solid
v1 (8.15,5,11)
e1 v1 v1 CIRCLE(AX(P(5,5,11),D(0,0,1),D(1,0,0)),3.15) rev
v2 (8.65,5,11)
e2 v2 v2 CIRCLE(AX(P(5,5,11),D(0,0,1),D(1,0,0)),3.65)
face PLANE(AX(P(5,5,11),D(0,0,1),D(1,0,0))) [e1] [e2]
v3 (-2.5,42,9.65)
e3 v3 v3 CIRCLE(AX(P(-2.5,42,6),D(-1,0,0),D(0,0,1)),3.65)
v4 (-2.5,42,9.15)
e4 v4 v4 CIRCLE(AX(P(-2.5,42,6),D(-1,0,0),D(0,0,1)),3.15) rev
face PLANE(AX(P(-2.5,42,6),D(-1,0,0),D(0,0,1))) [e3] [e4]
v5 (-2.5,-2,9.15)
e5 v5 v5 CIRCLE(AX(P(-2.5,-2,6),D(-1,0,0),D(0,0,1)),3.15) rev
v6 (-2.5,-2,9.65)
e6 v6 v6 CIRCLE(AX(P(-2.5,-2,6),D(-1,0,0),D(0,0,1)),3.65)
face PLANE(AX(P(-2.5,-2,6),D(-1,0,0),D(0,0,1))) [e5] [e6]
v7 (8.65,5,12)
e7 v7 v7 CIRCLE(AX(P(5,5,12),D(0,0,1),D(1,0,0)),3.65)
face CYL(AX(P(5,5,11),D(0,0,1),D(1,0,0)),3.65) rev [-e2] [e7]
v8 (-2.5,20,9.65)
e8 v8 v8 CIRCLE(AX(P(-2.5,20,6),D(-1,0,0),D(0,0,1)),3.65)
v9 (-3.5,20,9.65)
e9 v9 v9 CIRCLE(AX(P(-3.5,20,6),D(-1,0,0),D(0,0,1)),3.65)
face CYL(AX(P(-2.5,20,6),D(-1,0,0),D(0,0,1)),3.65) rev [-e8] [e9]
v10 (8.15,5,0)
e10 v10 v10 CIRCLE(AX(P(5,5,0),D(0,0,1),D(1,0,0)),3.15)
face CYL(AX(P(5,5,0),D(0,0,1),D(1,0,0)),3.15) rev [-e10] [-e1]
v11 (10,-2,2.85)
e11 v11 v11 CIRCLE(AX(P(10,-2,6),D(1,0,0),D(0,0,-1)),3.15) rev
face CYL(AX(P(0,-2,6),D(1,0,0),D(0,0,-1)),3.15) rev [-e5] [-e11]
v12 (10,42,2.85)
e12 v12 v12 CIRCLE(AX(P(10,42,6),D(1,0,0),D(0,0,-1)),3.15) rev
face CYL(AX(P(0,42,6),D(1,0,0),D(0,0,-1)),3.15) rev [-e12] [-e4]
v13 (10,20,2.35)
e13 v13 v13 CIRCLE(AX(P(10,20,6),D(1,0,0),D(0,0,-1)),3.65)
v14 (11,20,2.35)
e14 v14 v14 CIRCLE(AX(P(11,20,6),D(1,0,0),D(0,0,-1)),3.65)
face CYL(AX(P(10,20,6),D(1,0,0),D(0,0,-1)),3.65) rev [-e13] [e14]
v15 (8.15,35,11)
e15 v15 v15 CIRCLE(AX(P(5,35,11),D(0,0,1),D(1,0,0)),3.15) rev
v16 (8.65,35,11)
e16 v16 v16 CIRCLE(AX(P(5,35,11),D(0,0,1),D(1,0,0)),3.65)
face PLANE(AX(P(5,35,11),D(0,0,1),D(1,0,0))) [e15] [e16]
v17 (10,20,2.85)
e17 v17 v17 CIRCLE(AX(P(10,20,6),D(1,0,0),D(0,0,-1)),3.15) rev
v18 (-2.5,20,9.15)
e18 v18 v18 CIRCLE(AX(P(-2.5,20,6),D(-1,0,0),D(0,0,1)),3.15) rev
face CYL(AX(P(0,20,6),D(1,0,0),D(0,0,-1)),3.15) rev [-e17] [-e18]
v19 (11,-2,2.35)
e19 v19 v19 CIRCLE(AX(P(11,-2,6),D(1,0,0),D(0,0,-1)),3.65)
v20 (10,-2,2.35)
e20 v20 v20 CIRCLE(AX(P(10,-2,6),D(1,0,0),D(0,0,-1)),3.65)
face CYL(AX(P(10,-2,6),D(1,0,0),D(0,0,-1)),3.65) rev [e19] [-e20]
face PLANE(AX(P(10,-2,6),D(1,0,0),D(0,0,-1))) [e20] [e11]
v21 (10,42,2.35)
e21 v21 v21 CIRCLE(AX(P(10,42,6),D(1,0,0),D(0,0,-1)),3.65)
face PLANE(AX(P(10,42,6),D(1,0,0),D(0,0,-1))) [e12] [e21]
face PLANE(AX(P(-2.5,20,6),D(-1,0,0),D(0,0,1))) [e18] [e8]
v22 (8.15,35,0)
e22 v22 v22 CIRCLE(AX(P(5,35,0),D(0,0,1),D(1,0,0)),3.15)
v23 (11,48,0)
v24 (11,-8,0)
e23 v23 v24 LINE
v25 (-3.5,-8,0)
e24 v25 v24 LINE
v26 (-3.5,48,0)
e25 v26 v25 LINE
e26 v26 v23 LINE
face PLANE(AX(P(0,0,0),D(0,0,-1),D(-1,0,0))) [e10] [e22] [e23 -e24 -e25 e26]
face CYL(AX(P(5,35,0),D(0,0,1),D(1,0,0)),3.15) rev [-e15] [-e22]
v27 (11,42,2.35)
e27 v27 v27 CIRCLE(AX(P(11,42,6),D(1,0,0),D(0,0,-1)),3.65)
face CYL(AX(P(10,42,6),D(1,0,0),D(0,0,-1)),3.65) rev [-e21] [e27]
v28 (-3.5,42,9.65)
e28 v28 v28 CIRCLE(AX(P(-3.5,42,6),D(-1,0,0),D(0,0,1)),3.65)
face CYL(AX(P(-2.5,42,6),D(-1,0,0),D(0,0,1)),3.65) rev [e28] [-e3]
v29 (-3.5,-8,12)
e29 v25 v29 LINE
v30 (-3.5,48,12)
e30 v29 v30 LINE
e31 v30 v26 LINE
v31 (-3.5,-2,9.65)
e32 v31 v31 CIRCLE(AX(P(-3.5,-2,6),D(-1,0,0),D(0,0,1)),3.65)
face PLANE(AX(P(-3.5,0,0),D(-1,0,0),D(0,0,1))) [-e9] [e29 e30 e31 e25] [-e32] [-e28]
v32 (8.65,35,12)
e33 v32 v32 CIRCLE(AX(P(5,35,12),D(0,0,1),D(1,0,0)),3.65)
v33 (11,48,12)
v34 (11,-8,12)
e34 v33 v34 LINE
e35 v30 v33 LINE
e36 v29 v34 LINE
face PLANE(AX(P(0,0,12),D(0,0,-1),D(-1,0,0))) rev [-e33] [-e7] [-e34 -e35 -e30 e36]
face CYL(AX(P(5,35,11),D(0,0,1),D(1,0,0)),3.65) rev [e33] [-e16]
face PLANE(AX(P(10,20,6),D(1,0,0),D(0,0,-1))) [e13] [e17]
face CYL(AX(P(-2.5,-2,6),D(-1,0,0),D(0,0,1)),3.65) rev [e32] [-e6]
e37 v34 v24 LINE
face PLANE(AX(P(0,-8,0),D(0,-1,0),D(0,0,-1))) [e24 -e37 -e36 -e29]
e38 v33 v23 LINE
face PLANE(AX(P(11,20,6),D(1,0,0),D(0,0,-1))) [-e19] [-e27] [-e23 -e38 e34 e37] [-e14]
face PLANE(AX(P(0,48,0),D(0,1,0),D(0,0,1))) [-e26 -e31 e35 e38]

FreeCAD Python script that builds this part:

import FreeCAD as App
import Part
import Sketcher

V = App.Vector


def add_polygon(sketch, points):
    """Adds a closed chain of lines whose ends are joined by coincident constraints."""
    first, n = sketch.GeometryCount, len(points)
    for a, b in zip(points, points[1:] + points[:1]):
        sketch.addGeometry(Part.LineSegment(App.Vector(*a, 0), App.Vector(*b, 0)), False)
    for i in range(n):
        sketch.addConstraint(Sketcher.Constraint("Coincident", first + i, 2, first + (i + 1) % n, 1))

doc = App.newDocument("Part")
body = doc.addObject("PartDesign::Body", "Body")

sketch1 = body.newObject("Sketcher::SketchObject", "Sketch")
sketch1.AttachmentSupport = (doc.getObject("XY_Plane"), [""])
sketch1.MapMode = "FlatFace"
add_polygon(sketch1, [(0, 40), (0, 0), (12, 0), (12, 40)])
sketch1.addConstraint([
    Sketcher.Constraint("Vertical", 0),
    Sketcher.Constraint("Horizontal", 1),
    Sketcher.Constraint("Vertical", 2),
    Sketcher.Constraint("Horizontal", 3),
    Sketcher.Constraint("Coincident", 0, 2, -1, 1),
    Sketcher.Constraint("DistanceX", 1, 1, 1, 2, 12.0),
    Sketcher.Constraint("DistanceY", 0, 2, 0, 1, 40.0),
])
pad1 = body.newObject("PartDesign::Pad", "Pad")
pad1.Profile = sketch1
pad1.Length = 12

sketch2 = body.newObject("Sketcher::SketchObject", "Sketch001")
sketch2.AttachmentSupport = (doc.getObject("XY_Plane"), [""])
sketch2.MapMode = "FlatFace"
sketch2.AttachmentOffset = App.Placement(V(0, 0, 12), App.Rotation())
sketch2.addGeometry([
    Part.Circle(V(5, 5, 0), V(0, 0, 1), 3.1),
    Part.Circle(V(5, 35, 0), V(0, 0, 1), 3.1),
], False)
sketch2.addConstraint([
    Sketcher.Constraint("Equal", 0, 1),
    Sketcher.Constraint("Vertical", 0, 3, 1, 3),
    Sketcher.Constraint("Diameter", 0, 6.3),
    Sketcher.Constraint("DistanceX", -1, 1, 0, 3, 5.0),
    Sketcher.Constraint("DistanceY", -1, 1, 0, 3, 5.0),
    Sketcher.Constraint("DistanceY", -1, 1, 1, 3, 35.0),
])
pocket1 = body.newObject("PartDesign::Pocket", "Pocket")
pocket1.Profile = sketch2
pocket1.Type = "ThroughAll"
pocket1.Midplane = True

sketch3 = body.newObject("Sketcher::SketchObject", "Sketch002")
sketch3.AttachmentSupport = (doc.getObject("YZ_Plane"), [""])
sketch3.MapMode = "FlatFace"
sketch3.AttachmentOffset = App.Placement(V(0, 0, 12), App.Rotation())
sketch3.addGeometry(Part.Circle(V(20, 6, 0), V(0, 0, 1), 3.1), False)
sketch3.addConstraint([
    Sketcher.Constraint("Diameter", 0, 6.3),
    Sketcher.Constraint("DistanceX", -1, 1, 0, 3, 20.0),
    Sketcher.Constraint("DistanceY", -1, 1, 0, 3, 6.0),
])
pocket2 = body.newObject("PartDesign::Pocket", "Pocket001")
pocket2.Profile = sketch3
pocket2.Type = "ThroughAll"
pocket2.Midplane = True

sketch4 = body.newObject("Sketcher::SketchObject", "Sketch003")
sketch4.AttachmentSupport = (doc.getObject("XY_Plane"), [""])
sketch4.MapMode = "FlatFace"
sketch4.AttachmentOffset = App.Placement(V(0, 0, 12), App.Rotation())
sketch4.addGeometry([
    Part.Circle(V(5, 35, 0), V(0, 0, 1), 3.6),
    Part.Circle(V(5, 5, 0), V(0, 0, 1), 3.6),
], False)
sketch4.addConstraint([
    Sketcher.Constraint("Equal", 0, 1),
    Sketcher.Constraint("Vertical", 0, 3, 1, 3),
    Sketcher.Constraint("Diameter", 0, 7.3),
    Sketcher.Constraint("DistanceX", -1, 1, 0, 3, 5.0),
    Sketcher.Constraint("DistanceY", -1, 1, 0, 3, 35.0),
    Sketcher.Constraint("DistanceY", -1, 1, 1, 3, 5.0),
])
pocket3 = body.newObject("PartDesign::Pocket", "Pocket002")
pocket3.Profile = sketch4
pocket3.Length = 1

sketch5 = body.newObject("Sketcher::SketchObject", "Sketch004")
sketch5.AttachmentSupport = (doc.getObject("YZ_Plane"), [""])
sketch5.MapMode = "FlatFace"
sketch5.AttachmentOffset = App.Placement(V(0, 0, 12), App.Rotation())
sketch5.addGeometry(Part.Circle(V(20, 6, 0), V(0, 0, 1), 3.6), False)
sketch5.addConstraint([
    Sketcher.Constraint("Diameter", 0, 7.3),
    Sketcher.Constraint("DistanceX", -1, 1, 0, 3, 20.0),
    Sketcher.Constraint("DistanceY", -1, 1, 0, 3, 6.0),
])
pocket4 = body.newObject("PartDesign::Pocket", "Pocket003")
pocket4.Profile = sketch5
pocket4.Length = 1

sketch6 = body.newObject("Sketcher::SketchObject", "Sketch005")
sketch6.AttachmentSupport = (doc.getObject("YZ_Plane"), [""])
sketch6.MapMode = "FlatFace"
sketch6.AttachmentOffset = App.Placement(V(0, 0, 12), App.Rotation())
add_polygon(sketch6, [(0, 12), (-8, 12), (-8, 0), (0, 0)])
add_polygon(sketch6, [(48, 12), (40, 12), (40, 0), (48, 0)])
sketch6.addConstraint([
    Sketcher.Constraint("Horizontal", 0),
    Sketcher.Constraint("Vertical", 1),
    Sketcher.Constraint("Horizontal", 2),
    Sketcher.Constraint("Vertical", 3),
    Sketcher.Constraint("Horizontal", 4),
    Sketcher.Constraint("Vertical", 5),
    Sketcher.Constraint("Horizontal", 6),
    Sketcher.Constraint("Vertical", 7),
    Sketcher.Constraint("Coincident", 2, 2, -1, 1),
    Sketcher.Constraint("PointOnObject", 5, 2, -1),
    Sketcher.Constraint("Horizontal", 3, 2, 4, 2),
    Sketcher.Constraint("Equal", 2, 4),
    Sketcher.Constraint("DistanceX", 0, 2, 0, 1, 8.0),
    Sketcher.Constraint("DistanceY", 1, 2, 1, 1, 12.0),
    Sketcher.Constraint("DistanceX", -1, 1, 4, 2, 40.0),
])
pad2 = body.newObject("PartDesign::Pad", "Pad001")
pad2.Profile = sketch6
pad2.Length = 12
pad2.Reversed = True

sketch7 = body.newObject("Sketcher::SketchObject", "Sketch006")
sketch7.AttachmentSupport = (doc.getObject("XZ_Plane"), [""])
sketch7.MapMode = "FlatFace"
sketch7.AttachmentOffset = App.Placement(V(0, 0, 8), App.Rotation())
add_polygon(sketch7, [(11, 12), (11, 0), (12, 0), (12, 12)])
sketch7.addConstraint([
    Sketcher.Constraint("Vertical", 0),
    Sketcher.Constraint("Horizontal", 1),
    Sketcher.Constraint("Vertical", 2),
    Sketcher.Constraint("Horizontal", 3),
    Sketcher.Constraint("PointOnObject", 0, 2, -1),
    Sketcher.Constraint("DistanceX", 1, 1, 1, 2, 1.0),
    Sketcher.Constraint("DistanceY", 0, 2, 0, 1, 12.0),
    Sketcher.Constraint("DistanceX", -1, 1, 0, 2, 11.0),
])
pocket5 = body.newObject("PartDesign::Pocket", "Pocket004")
pocket5.Profile = sketch7
pocket5.Type = "ThroughAll"
pocket5.Midplane = True

sketch8 = body.newObject("Sketcher::SketchObject", "Sketch007")
sketch8.AttachmentSupport = (doc.getObject("YZ_Plane"), [""])
sketch8.MapMode = "FlatFace"
sketch8.AttachmentOffset = App.Placement(V(0, 0, 11), App.Rotation())
sketch8.addGeometry([
    Part.Circle(V(42, 6, 0), V(0, 0, 1), 3.1),
    Part.Circle(V(-2, 6, 0), V(0, 0, 1), 3.1),
], False)
sketch8.addConstraint([
    Sketcher.Constraint("Equal", 0, 1),
    Sketcher.Constraint("Horizontal", 0, 3, 1, 3),
    Sketcher.Constraint("Diameter", 0, 6.3),
    Sketcher.Constraint("DistanceX", -1, 1, 0, 3, 42.0),
    Sketcher.Constraint("DistanceY", -1, 1, 0, 3, 6.0),
    Sketcher.Constraint("DistanceX", 1, 3, -1, 1, 2.0),
])
pocket6 = body.newObject("PartDesign::Pocket", "Pocket005")
pocket6.Profile = sketch8
pocket6.Type = "ThroughAll"
pocket6.Midplane = True

sketch9 = body.newObject("Sketcher::SketchObject", "Sketch008")
sketch9.AttachmentSupport = (doc.getObject("YZ_Plane"), [""])
sketch9.MapMode = "FlatFace"
add_polygon(sketch9, [(48, 0), (-8, 0), (-8, 12), (48, 12)])
sketch9.addGeometry(Part.Circle(V(-2, 6, 0), V(0, 0, 1), 3.1), False)
sketch9.addGeometry(Part.Circle(V(20, 6, 0), V(0, 0, 1), 3.1), False)
sketch9.addGeometry(Part.Circle(V(42, 6, 0), V(0, 0, 1), 3.1), False)
sketch9.addConstraint([
    Sketcher.Constraint("Horizontal", 0),
    Sketcher.Constraint("Vertical", 1),
    Sketcher.Constraint("Horizontal", 2),
    Sketcher.Constraint("Vertical", 3),
    Sketcher.Constraint("Equal", 4, 5),
    Sketcher.Constraint("Equal", 5, 6),
    Sketcher.Constraint("PointOnObject", 0, 2, -1),
    Sketcher.Constraint("Horizontal", 4, 3, 5, 3),
    Sketcher.Constraint("Horizontal", 5, 3, 6, 3),
    Sketcher.Constraint("Diameter", 4, 6.3),
    Sketcher.Constraint("DistanceX", 0, 2, 0, 1, 56.0),
    Sketcher.Constraint("DistanceY", 1, 1, 1, 2, 12.0),
    Sketcher.Constraint("DistanceX", 4, 3, -1, 1, 2.0),
    Sketcher.Constraint("DistanceY", -1, 1, 4, 3, 6.0),
    Sketcher.Constraint("DistanceX", -1, 1, 5, 3, 20.0),
    Sketcher.Constraint("DistanceX", -1, 1, 6, 3, 42.0),
    Sketcher.Constraint("DistanceX", 0, 2, -1, 1, 8.0),
])
pad3 = body.newObject("PartDesign::Pad", "Pad002")
pad3.Profile = sketch9
pad3.Length = 3.5
pad3.Reversed = True

sketch10 = body.newObject("Sketcher::SketchObject", "Sketch009")
sketch10.AttachmentSupport = (doc.getObject("YZ_Plane"), [""])
sketch10.MapMode = "FlatFace"
sketch10.AttachmentOffset = App.Placement(V(0, 0, -3.5), App.Rotation())
sketch10.addGeometry([
    Part.Circle(V(42, 6, 0), V(0, 0, 1), 3.6),
    Part.Circle(V(20, 6, 0), V(0, 0, 1), 3.6),
    Part.Circle(V(-2, 6, 0), V(0, 0, 1), 3.6),
], False)
sketch10.addConstraint([
    Sketcher.Constraint("Equal", 0, 1),
    Sketcher.Constraint("Equal", 1, 2),
    Sketcher.Constraint("Horizontal", 0, 3, 1, 3),
    Sketcher.Constraint("Horizontal", 1, 3, 2, 3),
    Sketcher.Constraint("Diameter", 0, 7.3),
    Sketcher.Constraint("DistanceX", -1, 1, 0, 3, 42.0),
    Sketcher.Constraint("DistanceY", -1, 1, 0, 3, 6.0),
    Sketcher.Constraint("DistanceX", -1, 1, 1, 3, 20.0),
    Sketcher.Constraint("DistanceX", 2, 3, -1, 1, 2.0),
])
pocket7 = body.newObject("PartDesign::Pocket", "Pocket006")
pocket7.Profile = sketch10
pocket7.Length = 1
pocket7.Reversed = True

sketch11 = body.newObject("Sketcher::SketchObject", "Sketch010")
sketch11.AttachmentSupport = (doc.getObject("YZ_Plane"), [""])
sketch11.MapMode = "FlatFace"
sketch11.AttachmentOffset = App.Placement(V(0, 0, 11), App.Rotation())
sketch11.addGeometry([
    Part.Circle(V(-2, 6, 0), V(0, 0, 1), 3.6),
    Part.Circle(V(20, 6, 0), V(0, 0, 1), 3.6),
    Part.Circle(V(42, 6, 0), V(0, 0, 1), 3.6),
], False)
sketch11.addConstraint([
    Sketcher.Constraint("Equal", 0, 1),
    Sketcher.Constraint("Equal", 1, 2),
    Sketcher.Constraint("Horizontal", 0, 3, 1, 3),
    Sketcher.Constraint("Horizontal", 1, 3, 2, 3),
    Sketcher.Constraint("Diameter", 0, 7.3),
    Sketcher.Constraint("DistanceX", 0, 3, -1, 1, 2.0),
    Sketcher.Constraint("DistanceY", -1, 1, 0, 3, 6.0),
    Sketcher.Constraint("DistanceX", -1, 1, 1, 3, 20.0),
    Sketcher.Constraint("DistanceX", -1, 1, 2, 3, 42.0),
])
pocket8 = body.newObject("PartDesign::Pocket", "Pocket007")
pocket8.Profile = sketch11
pocket8.Length = 1

doc.recompute()
